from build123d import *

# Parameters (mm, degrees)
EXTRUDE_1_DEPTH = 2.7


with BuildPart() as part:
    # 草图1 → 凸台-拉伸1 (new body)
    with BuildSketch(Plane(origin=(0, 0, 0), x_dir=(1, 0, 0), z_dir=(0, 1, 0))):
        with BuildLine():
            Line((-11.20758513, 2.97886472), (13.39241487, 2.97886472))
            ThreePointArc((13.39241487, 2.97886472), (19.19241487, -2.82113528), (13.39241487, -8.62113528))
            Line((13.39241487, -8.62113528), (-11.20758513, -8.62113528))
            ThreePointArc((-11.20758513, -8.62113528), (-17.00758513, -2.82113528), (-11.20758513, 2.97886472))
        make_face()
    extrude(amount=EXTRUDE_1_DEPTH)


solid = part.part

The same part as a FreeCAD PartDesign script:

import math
import FreeCAD as App
import Part
import Sketcher
Q = App.Units.Quantity

doc = App.newDocument("Part")
params = doc.addObject("Spreadsheet::Sheet", "Params")
for row, (alias, value) in enumerate([
    ("sketch1_radius", "5.8 mm"),
    ("sketch1_width", "24.6 mm"),
    ("pad1_length", "2.7 mm"),
], start=1):
    params.set(f"A{row}", alias)
    params.set(f"B{row}", "=" + value)
    params.setAlias(f"B{row}", alias)

body = doc.addObject("PartDesign::Body", "Body")

sketch1 = body.newObject("Sketcher::SketchObject", "Sketch")
sketch1.AttachmentSupport = (doc.getObject("XZ_Plane"), [""])
sketch1.MapMode = "FlatFace"
sketch1.addGeometry([
    Part.LineSegment(App.Vector(13, -3, 0), App.Vector(-11, -3, 0)),
    Part.ArcOfCircle(Part.Circle(App.Vector(-11, 3, 0), App.Vector(0, 0, 1), 6), math.radians(90), math.radians(270)),
    Part.LineSegment(App.Vector(-11, 9, 0), App.Vector(13, 9, 0)),
    Part.ArcOfCircle(Part.Circle(App.Vector(13, 3, 0), App.Vector(0, 0, 1), 6), math.radians(-90), math.radians(90)),
], False)
sketch1.addConstraint([
    Sketcher.Constraint("Tangent", 0, 2, 1, 2),
    Sketcher.Constraint("Tangent", 1, 1, 2, 1),
    Sketcher.Constraint("Tangent", 2, 2, 3, 2),
    Sketcher.Constraint("Tangent", 3, 1, 0, 1),
    Sketcher.Constraint("Horizontal", 0),
    Sketcher.Constraint("Horizontal", 2),
    Sketcher.Constraint("Radius", 1, Q("5.8 mm")),
    Sketcher.Constraint("DistanceX", 0, 2, 0, 1, Q("24.6 mm")),
    Sketcher.Constraint("DistanceX", 1, 3, -1, 1, Q("11.207585 mm")),
    Sketcher.Constraint("DistanceY", -1, 1, 1, 3, Q("2.821135 mm")),
])
sketch1.setExpression("Constraints[6]", "Params.sketch1_radius")
sketch1.setExpression("Constraints[7]", "Params.sketch1_width")
pad1 = body.newObject("PartDesign::Pad", "Pad")
pad1.Profile = sketch1
pad1.setExpression("Length", "Params.pad1_length")
pad1.Reversed = True

doc.recompute()
